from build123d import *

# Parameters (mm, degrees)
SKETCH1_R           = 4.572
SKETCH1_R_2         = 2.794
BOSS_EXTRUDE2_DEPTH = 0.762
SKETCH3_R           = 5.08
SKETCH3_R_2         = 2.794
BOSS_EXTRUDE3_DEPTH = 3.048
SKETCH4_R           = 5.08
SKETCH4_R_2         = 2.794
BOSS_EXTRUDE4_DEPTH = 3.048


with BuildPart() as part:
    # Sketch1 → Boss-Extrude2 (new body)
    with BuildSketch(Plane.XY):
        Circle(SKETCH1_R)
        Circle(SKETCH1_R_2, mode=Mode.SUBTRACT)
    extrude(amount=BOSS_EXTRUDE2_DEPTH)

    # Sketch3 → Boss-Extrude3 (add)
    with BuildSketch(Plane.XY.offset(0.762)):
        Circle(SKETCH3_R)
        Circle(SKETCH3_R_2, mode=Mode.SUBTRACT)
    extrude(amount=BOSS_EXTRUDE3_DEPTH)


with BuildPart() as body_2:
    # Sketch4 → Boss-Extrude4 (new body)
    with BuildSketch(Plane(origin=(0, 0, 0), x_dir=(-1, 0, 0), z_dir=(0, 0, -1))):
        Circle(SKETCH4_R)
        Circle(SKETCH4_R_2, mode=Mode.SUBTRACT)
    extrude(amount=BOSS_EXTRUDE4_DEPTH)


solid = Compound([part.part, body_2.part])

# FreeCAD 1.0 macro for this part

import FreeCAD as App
import Part
import Sketcher
from FreeCAD import Vector
Q = App.Units.Quantity

doc = App.newDocument("Part")
params = doc.addObject("Spreadsheet::Sheet", "Params")
for row, (alias, value) in enumerate([
    ("sketch1_diameter", "0.36 in"),
    ("sketch1_diameter2", "0.22 in"),
    ("pad1_length", "0.03 in"),
    ("sketch2_diameter", "0.4 in"),
    ("sketch2_diameter2", "0.22 in"),
    ("pad2_length", "0.12 in"),
    ("sketch3_diameter", "0.4 in"),
    ("sketch3_diameter2", "0.22 in"),
    ("pad3_length", "0.12 in"),
], start=1):
    params.set(f"A{row}", alias)
    params.set(f"B{row}", "=" + value)
    params.setAlias(f"B{row}", alias)

body = doc.addObject("PartDesign::Body", "Body")

# Sketch on XY plane
sketch1 = body.newObject("Sketcher::SketchObject", "Sketch")
sketch1.AttachmentSupport = (doc.getObject("XY_Plane"), [""])
sketch1.MapMode = "FlatFace"
sketch1.addGeometry([
    Part.Circle(Vector(0, 0, 0), Vector(0, 0, 1), 4.572),
    Part.Circle(Vector(0, 0, 0), Vector(0, 0, 1), 2.794),
], False)
sketch1.addConstraint([
    Sketcher.Constraint("Coincident", 0, 3, -1, 1),
    Sketcher.Constraint("Coincident", 1, 3, -1, 1),
    Sketcher.Constraint("Diameter", 0, Q("0.36 in")),
    Sketcher.Constraint("Diameter", 1, Q("0.22 in")),
])
sketch1.setExpression("Constraints[2]", "Params.sketch1_diameter")
sketch1.setExpression("Constraints[3]", "Params.sketch1_diameter2")
pad1 = body.newObject("PartDesign::Pad", "Pad")
pad1.Profile = sketch1
pad1.setExpression("Length", "Params.pad1_length")

# Sketch on XY plane
sketch2 = body.newObject("Sketcher::SketchObject", "Sketch001")
sketch2.AttachmentSupport = (doc.getObject("XY_Plane"), [""])
sketch2.MapMode = "FlatFace"
sketch2.AttachmentOffset = App.Placement(Vector(0, 0, 0.03 * 25.4), App.Rotation())
sketch2.addGeometry([
    Part.Circle(Vector(0, 0, 0), Vector(0, 0, 1), 5.08),
    Part.Circle(Vector(0, 0, 0), Vector(0, 0, 1), 2.794),
], False)
sketch2.addConstraint([
    Sketcher.Constraint("Coincident", 0, 3, -1, 1),
    Sketcher.Constraint("Coincident", 1, 3, -1, 1),
    Sketcher.Constraint("Diameter", 0, Q("0.4 in")),
    Sketcher.Constraint("Diameter", 1, Q("0.22 in")),
])
sketch2.setExpression("Constraints[2]", "Params.sketch2_diameter")
sketch2.setExpression("Constraints[3]", "Params.sketch2_diameter2")
pad2 = body.newObject("PartDesign::Pad", "Pad001")
pad2.Profile = sketch2
pad2.setExpression("Length", "Params.pad2_length")
body2 = doc.addObject("PartDesign::Body", "Body001")

# Sketch on XY plane
sketch3 = body2.newObject("Sketcher::SketchObject", "Sketch002")
sketch3.AttachmentSupport = (doc.getObject("XY_Plane001"), [""])
sketch3.MapMode = "FlatFace"
sketch3.addGeometry([
    Part.Circle(Vector(0, 0, 0), Vector(0, 0, 1), 5.08),
    Part.Circle(Vector(0, 0, 0), Vector(0, 0, 1), 2.794),
], False)
sketch3.addConstraint([
    Sketcher.Constraint("Coincident", 0, 3, -1, 1),
    Sketcher.Constraint("Coincident", 1, 3, -1, 1),
    Sketcher.Constraint("Diameter", 0, Q("0.4 in")),
    Sketcher.Constraint("Diameter", 1, Q("0.22 in")),
])
sketch3.setExpression("Constraints[2]", "Params.sketch3_diameter")
sketch3.setExpression("Constraints[3]", "Params.sketch3_diameter2")
pad3 = body2.newObject("PartDesign::Pad", "Pad002")
pad3.Profile = sketch3
pad3.setExpression("Length", "Params.pad3_length")
pad3.Reversed = True

doc.recompute()
